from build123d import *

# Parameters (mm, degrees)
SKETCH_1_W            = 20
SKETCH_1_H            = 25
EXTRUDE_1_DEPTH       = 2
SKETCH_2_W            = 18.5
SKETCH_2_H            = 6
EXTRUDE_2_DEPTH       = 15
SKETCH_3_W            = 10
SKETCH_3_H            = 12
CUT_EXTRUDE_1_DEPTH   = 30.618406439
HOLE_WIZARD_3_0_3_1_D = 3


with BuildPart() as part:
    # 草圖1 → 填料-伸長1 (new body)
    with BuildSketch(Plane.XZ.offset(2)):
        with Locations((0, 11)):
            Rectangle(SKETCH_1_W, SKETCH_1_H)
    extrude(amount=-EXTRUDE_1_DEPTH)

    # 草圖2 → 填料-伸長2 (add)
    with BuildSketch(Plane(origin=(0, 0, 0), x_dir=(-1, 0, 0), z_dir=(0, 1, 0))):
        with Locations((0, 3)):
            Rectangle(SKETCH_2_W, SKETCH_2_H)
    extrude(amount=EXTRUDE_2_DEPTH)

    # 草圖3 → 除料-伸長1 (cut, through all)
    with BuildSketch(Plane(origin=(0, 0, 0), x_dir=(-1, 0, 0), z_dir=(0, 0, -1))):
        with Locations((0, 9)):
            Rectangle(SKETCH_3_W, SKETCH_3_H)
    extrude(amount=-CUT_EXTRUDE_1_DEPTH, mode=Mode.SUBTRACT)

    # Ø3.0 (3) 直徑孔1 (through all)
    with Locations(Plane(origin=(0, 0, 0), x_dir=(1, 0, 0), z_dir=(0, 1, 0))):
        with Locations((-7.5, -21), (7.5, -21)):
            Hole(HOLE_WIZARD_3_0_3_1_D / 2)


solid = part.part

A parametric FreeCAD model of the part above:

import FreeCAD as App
import Part
import Sketcher

V = App.Vector


def add_polygon(sketch, points):
    """Adds a closed chain of lines whose ends are joined by coincident constraints."""
    first, n = sketch.GeometryCount, len(points)
    for a, b in zip(points, points[1:] + points[:1]):
        sketch.addGeometry(Part.LineSegment(App.Vector(*a, 0), App.Vector(*b, 0)), False)
    for i in range(n):
        sketch.addConstraint(Sketcher.Constraint("Coincident", first + i, 2, first + (i + 1) % n, 1))

doc = App.newDocument("Part")
body = doc.addObject("PartDesign::Body", "Body")

# Sketch on XZ plane
sketch1 = body.newObject("Sketcher::SketchObject", "Sketch")
sketch1.AttachmentSupport = (doc.getObject("XZ_Plane"), [""])
sketch1.MapMode = "FlatFace"
sketch1.AttachmentOffset = App.Placement(V(0, 0, 2), App.Rotation())
add_polygon(sketch1, [(-10, 24), (-10, -2), (10, -2), (10, 24)])  # lines 0-3
sketch1.addConstraint(Sketcher.Constraint("Vertical", 0))
sketch1.addConstraint(Sketcher.Constraint("Horizontal", 1))
sketch1.addConstraint(Sketcher.Constraint("Vertical", 2))
sketch1.addConstraint(Sketcher.Constraint("Horizontal", 3))
sketch1.addConstraint(Sketcher.Constraint("DistanceX", 1, 1, 1, 2, 20.0))
sketch1.addConstraint(Sketcher.Constraint("DistanceY", 0, 2, 0, 1, 25.0))
sketch1.addConstraint(Sketcher.Constraint("DistanceX", 0, 2, -1, 1, 10.0))
sketch1.addConstraint(Sketcher.Constraint("DistanceY", 0, 2, -1, 1, 1.5))
pad1 = body.newObject("PartDesign::Pad", "Pad")
pad1.Profile = sketch1
pad1.Length = 2
pad1.Reversed = True

# Sketch on XZ plane
sketch2 = body.newObject("Sketcher::SketchObject", "Sketch001")
sketch2.AttachmentSupport = (doc.getObject("XZ_Plane"), [""])
sketch2.MapMode = "FlatFace"
add_polygon(sketch2, [(9, 6), (9, 0), (-9, 0), (-9, 6)])  # lines 0-3
sketch2.addConstraint(Sketcher.Constraint("Vertical", 0))
sketch2.addConstraint(Sketcher.Constraint("Horizontal", 1))
sketch2.addConstraint(Sketcher.Constraint("Vertical", 2))
sketch2.addConstraint(Sketcher.Constraint("Horizontal", 3))
sketch2.addConstraint(Sketcher.Constraint("Symmetric", 0, 2, 1, 2, -1, 1))
sketch2.addConstraint(Sketcher.Constraint("DistanceY", 0, 2, 0, 1, 6.0))
sketch2.addConstraint(Sketcher.Constraint("DistanceX", 1, 2, 1, 1, 18.5))
pad2 = body.newObject("PartDesign::Pad", "Pad001")
pad2.Profile = sketch2
pad2.Length = 15
pad2.Reversed = True

# Sketch on XY plane
sketch3 = body.newObject("Sketcher::SketchObject", "Sketch002")
sketch3.AttachmentSupport = (doc.getObject("XY_Plane"), [""])
sketch3.MapMode = "FlatFace"
add_polygon(sketch3, [(5, 15), (5, 3), (-5, 3), (-5, 15)])  # lines 0-3
sketch3.addConstraint(Sketcher.Constraint("Vertical", 0))
sketch3.addConstraint(Sketcher.Constraint("Horizontal", 1))
sketch3.addConstraint(Sketcher.Constraint("Vertical", 2))
sketch3.addConstraint(Sketcher.Constraint("Horizontal", 3))
sketch3.addConstraint(Sketcher.Constraint("DistanceX", 1, 2, 1, 1, 10.0))
sketch3.addConstraint(Sketcher.Constraint("DistanceY", 0, 2, 0, 1, 12.0))
sketch3.addConstraint(Sketcher.Constraint("DistanceX", -1, 1, 0, 2, 5.0))
sketch3.addConstraint(Sketcher.Constraint("DistanceY", -1, 1, 0, 2, 3.0))
pocket1 = body.newObject("PartDesign::Pocket", "Pocket")
pocket1.Profile = sketch3
pocket1.Type = "ThroughAll"
pocket1.Reversed = True

# Sketch on XZ plane
sketch4 = body.newObject("Sketcher::SketchObject", "Sketch003")
sketch4.AttachmentSupport = (doc.getObject("XZ_Plane"), [""])
sketch4.MapMode = "FlatFace"
sketch4.addGeometry(Part.Circle(V(-7.5, 21, 0), V(0, 0, 1), 1.5), False)
sketch4.addGeometry(Part.Circle(V(7.5, 21, 0), V(0, 0, 1), 1.5), False)
sketch4.addConstraint(Sketcher.Constraint("Equal", 0, 1))
sketch4.addConstraint(Sketcher.Constraint("Symmetric", 0, 3, 1, 3, -2))
sketch4.addConstraint(Sketcher.Constraint("Diameter", 0, 3.0))
sketch4.addConstraint(Sketcher.Constraint("DistanceY", -1, 1, 0, 3, 21.0))
sketch4.addConstraint(Sketcher.Constraint("DistanceX", 0, 3, 1, 3, 15.0))
doc.recompute()
hole = body.newObject("PartDesign::Hole", "Hole")
hole.Profile = sketch4
hole.ThreadType = "None"
hole.Diameter = 3
hole.DepthType = "ThroughAll"
hole.Reversed = True

doc.recompute()
